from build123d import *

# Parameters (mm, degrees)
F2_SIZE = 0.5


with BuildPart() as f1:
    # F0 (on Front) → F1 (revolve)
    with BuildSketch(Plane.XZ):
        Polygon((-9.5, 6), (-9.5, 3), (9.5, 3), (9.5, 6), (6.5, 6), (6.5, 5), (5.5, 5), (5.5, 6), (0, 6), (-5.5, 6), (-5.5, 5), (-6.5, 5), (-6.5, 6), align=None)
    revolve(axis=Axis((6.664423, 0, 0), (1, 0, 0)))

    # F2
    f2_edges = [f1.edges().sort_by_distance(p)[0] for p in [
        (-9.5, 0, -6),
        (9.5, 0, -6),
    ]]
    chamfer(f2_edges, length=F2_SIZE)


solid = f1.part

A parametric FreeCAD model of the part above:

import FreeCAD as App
import Part
import Sketcher

V = App.Vector
Q = App.Units.Quantity


def edges_at(feature, points):
    """Names of the edges that pass closest to the given points."""
    edges = feature.Shape.Edges
    near = lambda p: min(range(len(edges)), key=lambda i: edges[i].distToShape(Part.Vertex(*p))[0])
    return sorted({f"Edge{near(p) + 1}" for p in points})


def add_polygon(sketch, points):
    """Adds a closed chain of lines whose ends are joined by coincident constraints."""
    first, n = sketch.GeometryCount, len(points)
    for a, b in zip(points, points[1:] + points[:1]):
        sketch.addGeometry(Part.LineSegment(App.Vector(*a, 0), App.Vector(*b, 0)), False)
    for i in range(n):
        sketch.addConstraint(Sketcher.Constraint("Coincident", first + i, 2, first + (i + 1) % n, 1))

doc = App.newDocument("Part")
body = doc.addObject("PartDesign::Body", "Body")

# Sketch on XZ plane
sketch1 = doc.addObject("Sketcher::SketchObject", "Sketch")
body.addObject(sketch1)
sketch1.AttachmentSupport = (doc.XZ_Plane, [""])
sketch1.MapMode = "FlatFace"
add_polygon(sketch1, [(-9.5, 6), (-9.5, 3), (9.5, 3), (9.5, 6), (6.5, 6), (6.5, 5), (5.5, 5), (5.5, 6), (-5.5, 6), (-5.5, 5), (-6.5, 5), (-6.5, 6)])  # lines 0-11
sketch1.addConstraint([
    Sketcher.Constraint("Vertical", 0),
    Sketcher.Constraint("Horizontal", 1),
    Sketcher.Constraint("Vertical", 2),
    Sketcher.Constraint("Horizontal", 3),
    Sketcher.Constraint("Vertical", 4),
    Sketcher.Constraint("Horizontal", 5),
    Sketcher.Constraint("Vertical", 6),
    Sketcher.Constraint("Horizontal", 7),
    Sketcher.Constraint("Vertical", 8),
    Sketcher.Constraint("Horizontal", 9),
    Sketcher.Constraint("Vertical", 10),
    Sketcher.Constraint("Horizontal", 11),
    Sketcher.Constraint("Symmetric", 5, 2, 8, 2, -2),
    Sketcher.Constraint("Symmetric", 3, 2, 10, 2, -2),
    Sketcher.Constraint("Horizontal", 3, 2, 6, 2),
    Sketcher.Constraint("Equal", 3, 11),
    Sketcher.Constraint("Equal", 11, 0),
    Sketcher.Constraint("Equal", 9, 4),
    Sketcher.Constraint("DistanceX", 1, 1, 1, 2, Q("19 mm")),
    Sketcher.Constraint("DistanceX", 3, 2, 3, 1, Q("3 mm")),
    Sketcher.Constraint("DistanceX", 5, 2, 5, 1, Q("1 mm")),
    Sketcher.Constraint("DistanceY", -1, 1, 0, 2, Q("3 mm")),
])
revolution = doc.addObject("PartDesign::Revolution", "Revolution")
body.addObject(revolution)
revolution.Profile = sketch1
revolution.ReferenceAxis = (sketch1, ["H_Axis"])
revolution.Angle = 360
doc.recompute()

chamfer = doc.addObject("PartDesign::Chamfer", "Chamfer")
body.addObject(chamfer)
chamfer.Base = (revolution, edges_at(revolution, [(-9.5, 0, -6), (9.5, 0, -6)]))
chamfer.Size = 0.5

doc.recompute()
